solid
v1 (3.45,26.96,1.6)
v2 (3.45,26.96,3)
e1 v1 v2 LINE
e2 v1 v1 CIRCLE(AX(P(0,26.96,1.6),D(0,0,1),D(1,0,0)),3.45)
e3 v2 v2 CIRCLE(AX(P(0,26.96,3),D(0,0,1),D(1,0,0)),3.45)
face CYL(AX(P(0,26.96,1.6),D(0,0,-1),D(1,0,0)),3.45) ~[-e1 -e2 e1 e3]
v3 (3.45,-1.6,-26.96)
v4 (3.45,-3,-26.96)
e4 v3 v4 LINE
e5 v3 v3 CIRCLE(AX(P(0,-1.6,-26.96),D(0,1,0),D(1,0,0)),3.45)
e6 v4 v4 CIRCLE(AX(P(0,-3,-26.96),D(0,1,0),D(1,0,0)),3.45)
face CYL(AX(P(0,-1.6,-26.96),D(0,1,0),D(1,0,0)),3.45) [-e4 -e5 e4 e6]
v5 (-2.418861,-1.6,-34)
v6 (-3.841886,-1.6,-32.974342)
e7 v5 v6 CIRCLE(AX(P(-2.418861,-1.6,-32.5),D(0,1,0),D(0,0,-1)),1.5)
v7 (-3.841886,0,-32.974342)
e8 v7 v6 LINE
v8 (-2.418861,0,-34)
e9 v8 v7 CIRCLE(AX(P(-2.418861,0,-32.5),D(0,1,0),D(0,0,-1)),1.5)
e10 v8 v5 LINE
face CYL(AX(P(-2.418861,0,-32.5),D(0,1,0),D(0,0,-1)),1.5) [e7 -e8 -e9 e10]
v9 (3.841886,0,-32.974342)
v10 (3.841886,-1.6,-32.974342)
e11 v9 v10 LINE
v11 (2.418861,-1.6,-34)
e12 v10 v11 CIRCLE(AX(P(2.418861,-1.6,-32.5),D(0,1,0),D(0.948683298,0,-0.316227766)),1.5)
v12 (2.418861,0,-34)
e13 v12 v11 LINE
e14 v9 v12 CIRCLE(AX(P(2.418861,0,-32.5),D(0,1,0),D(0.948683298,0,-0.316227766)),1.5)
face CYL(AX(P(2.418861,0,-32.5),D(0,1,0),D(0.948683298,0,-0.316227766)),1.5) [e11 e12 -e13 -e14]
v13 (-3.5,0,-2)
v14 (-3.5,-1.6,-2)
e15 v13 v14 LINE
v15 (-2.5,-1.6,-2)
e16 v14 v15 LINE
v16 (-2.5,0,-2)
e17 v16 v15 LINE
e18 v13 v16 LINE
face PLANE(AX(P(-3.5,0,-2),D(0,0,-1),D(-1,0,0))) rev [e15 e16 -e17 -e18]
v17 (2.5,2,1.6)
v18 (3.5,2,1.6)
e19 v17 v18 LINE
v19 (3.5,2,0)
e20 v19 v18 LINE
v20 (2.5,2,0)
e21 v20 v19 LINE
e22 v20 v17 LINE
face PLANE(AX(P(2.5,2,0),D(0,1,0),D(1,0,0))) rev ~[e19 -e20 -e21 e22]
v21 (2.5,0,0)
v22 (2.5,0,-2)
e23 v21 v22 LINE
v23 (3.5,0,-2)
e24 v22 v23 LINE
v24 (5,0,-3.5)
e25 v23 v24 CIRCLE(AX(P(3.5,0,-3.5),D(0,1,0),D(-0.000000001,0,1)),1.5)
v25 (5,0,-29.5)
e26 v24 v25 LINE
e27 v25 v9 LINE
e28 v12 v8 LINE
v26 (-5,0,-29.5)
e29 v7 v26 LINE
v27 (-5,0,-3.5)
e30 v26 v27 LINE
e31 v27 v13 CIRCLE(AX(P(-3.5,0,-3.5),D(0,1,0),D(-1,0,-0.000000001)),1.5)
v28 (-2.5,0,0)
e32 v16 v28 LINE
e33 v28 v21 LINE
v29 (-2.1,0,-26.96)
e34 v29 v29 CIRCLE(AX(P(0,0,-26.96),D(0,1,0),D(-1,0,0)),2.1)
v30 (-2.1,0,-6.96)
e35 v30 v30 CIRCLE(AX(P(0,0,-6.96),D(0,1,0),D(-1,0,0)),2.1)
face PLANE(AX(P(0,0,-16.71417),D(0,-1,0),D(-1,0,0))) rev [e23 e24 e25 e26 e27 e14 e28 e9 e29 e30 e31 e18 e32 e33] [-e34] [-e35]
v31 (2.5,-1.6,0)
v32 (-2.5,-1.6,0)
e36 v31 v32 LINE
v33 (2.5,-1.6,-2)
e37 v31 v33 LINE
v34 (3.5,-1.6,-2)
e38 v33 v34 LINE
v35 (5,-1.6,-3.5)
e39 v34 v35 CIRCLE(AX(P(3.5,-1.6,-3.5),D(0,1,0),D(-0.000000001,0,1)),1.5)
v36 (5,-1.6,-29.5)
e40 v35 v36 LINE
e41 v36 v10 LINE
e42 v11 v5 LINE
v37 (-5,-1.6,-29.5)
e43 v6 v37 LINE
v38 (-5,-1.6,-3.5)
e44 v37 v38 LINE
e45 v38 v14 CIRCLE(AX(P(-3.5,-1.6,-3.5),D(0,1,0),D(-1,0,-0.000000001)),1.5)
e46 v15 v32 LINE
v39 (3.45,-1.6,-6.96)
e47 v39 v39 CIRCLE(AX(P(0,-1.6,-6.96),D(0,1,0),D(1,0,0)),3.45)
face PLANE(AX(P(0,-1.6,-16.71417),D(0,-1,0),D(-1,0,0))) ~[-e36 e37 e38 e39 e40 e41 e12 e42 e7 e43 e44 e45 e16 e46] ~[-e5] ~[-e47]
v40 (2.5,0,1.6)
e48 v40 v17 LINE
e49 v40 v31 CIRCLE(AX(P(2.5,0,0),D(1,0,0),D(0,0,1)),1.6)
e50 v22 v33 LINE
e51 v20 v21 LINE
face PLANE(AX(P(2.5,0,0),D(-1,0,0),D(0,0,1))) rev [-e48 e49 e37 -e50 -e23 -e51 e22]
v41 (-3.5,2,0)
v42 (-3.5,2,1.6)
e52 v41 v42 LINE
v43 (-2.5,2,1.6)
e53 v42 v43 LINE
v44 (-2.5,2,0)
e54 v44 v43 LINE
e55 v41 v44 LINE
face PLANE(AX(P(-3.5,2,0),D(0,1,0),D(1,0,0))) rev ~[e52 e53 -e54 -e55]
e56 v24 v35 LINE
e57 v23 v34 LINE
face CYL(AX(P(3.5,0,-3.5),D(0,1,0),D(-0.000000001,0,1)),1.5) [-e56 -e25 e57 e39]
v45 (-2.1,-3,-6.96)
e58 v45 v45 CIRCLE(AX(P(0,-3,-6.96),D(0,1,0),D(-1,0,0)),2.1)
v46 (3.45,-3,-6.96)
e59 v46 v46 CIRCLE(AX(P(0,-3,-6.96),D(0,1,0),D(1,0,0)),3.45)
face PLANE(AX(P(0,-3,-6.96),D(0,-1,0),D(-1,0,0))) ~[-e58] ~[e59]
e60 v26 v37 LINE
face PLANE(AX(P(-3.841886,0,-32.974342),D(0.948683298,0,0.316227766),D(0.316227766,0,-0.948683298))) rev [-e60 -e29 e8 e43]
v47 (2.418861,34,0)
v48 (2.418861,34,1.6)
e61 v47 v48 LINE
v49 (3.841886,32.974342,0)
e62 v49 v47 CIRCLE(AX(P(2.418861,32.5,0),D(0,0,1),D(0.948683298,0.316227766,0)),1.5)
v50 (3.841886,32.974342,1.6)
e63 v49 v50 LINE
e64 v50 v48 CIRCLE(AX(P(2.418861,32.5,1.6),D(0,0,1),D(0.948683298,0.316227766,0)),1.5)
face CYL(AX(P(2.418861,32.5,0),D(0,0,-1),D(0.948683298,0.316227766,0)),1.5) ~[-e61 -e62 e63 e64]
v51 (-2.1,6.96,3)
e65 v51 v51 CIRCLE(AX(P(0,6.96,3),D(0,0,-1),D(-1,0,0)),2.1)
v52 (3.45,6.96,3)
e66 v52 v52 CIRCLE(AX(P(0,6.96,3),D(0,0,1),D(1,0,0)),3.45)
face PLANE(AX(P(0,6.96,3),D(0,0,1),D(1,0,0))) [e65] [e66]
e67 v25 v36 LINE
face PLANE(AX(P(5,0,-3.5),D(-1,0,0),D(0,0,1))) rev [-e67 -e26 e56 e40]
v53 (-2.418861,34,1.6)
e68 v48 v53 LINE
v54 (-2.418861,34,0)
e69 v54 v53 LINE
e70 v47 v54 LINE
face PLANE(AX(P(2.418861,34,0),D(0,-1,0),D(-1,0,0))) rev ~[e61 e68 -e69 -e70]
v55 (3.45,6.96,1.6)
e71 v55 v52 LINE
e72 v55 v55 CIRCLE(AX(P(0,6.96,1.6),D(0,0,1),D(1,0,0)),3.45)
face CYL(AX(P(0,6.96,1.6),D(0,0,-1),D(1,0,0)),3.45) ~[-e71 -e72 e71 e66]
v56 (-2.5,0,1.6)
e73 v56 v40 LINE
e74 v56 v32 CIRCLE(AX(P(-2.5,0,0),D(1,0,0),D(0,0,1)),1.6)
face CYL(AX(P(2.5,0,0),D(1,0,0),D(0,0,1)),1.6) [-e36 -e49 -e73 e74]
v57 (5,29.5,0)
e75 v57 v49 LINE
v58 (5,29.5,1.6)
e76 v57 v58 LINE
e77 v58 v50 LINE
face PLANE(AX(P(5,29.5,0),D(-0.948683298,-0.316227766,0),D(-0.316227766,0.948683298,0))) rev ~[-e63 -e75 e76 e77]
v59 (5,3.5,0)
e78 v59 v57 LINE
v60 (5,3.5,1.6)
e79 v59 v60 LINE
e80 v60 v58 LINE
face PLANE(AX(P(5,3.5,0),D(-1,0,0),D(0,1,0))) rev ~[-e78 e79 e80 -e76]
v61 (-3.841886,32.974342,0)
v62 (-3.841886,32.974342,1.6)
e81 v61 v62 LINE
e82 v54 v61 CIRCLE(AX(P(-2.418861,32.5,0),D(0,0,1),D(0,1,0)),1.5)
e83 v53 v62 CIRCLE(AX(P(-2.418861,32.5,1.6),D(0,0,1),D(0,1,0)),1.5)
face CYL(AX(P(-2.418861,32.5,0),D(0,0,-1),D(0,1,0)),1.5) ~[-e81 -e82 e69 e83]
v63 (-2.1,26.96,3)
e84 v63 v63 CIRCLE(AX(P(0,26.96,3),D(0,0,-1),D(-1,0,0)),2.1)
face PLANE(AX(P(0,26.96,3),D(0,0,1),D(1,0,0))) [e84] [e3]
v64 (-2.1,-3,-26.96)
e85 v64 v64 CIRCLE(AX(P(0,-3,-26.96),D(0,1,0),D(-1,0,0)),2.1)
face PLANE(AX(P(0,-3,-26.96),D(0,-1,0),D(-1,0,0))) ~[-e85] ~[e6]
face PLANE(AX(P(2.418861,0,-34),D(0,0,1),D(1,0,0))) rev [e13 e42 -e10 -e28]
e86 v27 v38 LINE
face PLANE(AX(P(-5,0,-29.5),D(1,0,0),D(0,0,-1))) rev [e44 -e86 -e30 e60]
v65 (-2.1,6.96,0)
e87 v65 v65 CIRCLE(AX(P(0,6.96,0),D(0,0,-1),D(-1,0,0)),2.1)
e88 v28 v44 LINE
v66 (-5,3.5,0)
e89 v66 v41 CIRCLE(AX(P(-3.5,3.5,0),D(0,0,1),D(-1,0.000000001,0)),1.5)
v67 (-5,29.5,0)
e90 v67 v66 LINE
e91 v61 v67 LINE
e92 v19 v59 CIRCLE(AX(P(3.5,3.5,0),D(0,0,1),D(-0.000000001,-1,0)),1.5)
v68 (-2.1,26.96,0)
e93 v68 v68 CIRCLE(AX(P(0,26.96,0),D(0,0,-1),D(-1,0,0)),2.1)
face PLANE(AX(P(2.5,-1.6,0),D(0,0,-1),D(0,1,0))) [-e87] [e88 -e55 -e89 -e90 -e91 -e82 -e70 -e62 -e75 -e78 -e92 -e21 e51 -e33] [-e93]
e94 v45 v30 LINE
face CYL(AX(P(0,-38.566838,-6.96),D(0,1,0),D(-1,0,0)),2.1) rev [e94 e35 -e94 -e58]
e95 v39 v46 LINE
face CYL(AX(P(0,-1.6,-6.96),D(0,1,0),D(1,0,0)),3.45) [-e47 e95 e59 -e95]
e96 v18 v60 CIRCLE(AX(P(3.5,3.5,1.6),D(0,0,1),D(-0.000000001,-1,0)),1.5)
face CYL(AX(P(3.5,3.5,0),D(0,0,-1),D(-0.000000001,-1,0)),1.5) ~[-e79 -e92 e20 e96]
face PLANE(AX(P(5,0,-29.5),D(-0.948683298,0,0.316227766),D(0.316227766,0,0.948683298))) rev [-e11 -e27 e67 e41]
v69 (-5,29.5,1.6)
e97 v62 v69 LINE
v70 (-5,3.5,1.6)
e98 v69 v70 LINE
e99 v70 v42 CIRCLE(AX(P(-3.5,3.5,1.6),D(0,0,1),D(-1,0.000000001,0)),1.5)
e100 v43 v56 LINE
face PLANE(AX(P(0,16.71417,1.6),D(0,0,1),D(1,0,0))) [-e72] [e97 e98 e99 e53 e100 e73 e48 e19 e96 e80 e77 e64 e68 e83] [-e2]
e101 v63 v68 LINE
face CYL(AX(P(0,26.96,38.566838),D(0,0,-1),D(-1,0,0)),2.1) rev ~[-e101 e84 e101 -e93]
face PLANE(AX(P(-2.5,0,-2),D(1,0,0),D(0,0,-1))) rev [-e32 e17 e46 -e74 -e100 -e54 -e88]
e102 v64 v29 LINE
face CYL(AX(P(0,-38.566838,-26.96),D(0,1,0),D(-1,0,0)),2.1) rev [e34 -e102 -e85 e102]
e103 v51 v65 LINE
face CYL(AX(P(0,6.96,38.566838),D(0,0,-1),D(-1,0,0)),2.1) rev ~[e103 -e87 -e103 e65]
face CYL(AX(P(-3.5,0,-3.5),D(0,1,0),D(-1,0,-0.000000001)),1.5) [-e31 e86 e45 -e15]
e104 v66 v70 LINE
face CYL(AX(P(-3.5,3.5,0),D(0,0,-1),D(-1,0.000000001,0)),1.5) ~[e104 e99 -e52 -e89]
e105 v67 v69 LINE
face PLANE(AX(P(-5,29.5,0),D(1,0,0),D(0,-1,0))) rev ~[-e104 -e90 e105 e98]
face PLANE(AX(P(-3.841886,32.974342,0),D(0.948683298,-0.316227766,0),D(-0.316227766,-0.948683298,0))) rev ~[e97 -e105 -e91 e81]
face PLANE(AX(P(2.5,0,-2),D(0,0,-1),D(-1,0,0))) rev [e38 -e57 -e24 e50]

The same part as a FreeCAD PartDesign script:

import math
import FreeCAD as App
import Part
import Sketcher

doc = App.newDocument("Part")
params = doc.addObject("Spreadsheet::Sheet", "Params")
for row, (alias, value) in enumerate([
    ("sketch1_radius", "1.5 mm"),
    ("sketch1_width", "1 mm"),
    ("sketch1_width2", "5 mm"),
    ("sketch1_height", "2 mm"),
    ("sketch1_height2", "26 mm"),
    ("pad1_length", "1.6 mm"),
    ("sketch2_diameter", "6.9 mm"),
    ("pad2_length", "1.4 mm"),
    ("sketch3_diameter", "4.2 mm"),
    ("hole_diameter", "4.2 mm"),
    ("sketch4_radius", "1.6 mm"),
    ("pad3_length", "5 mm"),
], start=1):
    params.set(f"A{row}", alias)
    params.set(f"B{row}", "=" + value)
    params.setAlias(f"B{row}", alias)

body = doc.addObject("PartDesign::Body", "Body")

# Sketch on XY plane
sketch1 = doc.addObject("Sketcher::SketchObject", "Sketch")
body.addObject(sketch1)
sketch1.AttachmentSupport = (doc.XY_Plane, [""])
sketch1.MapMode = "FlatFace"
sketch1.addGeometry(Part.LineSegment(App.Vector(-3.5, 2, 0), App.Vector(-2.5, 2, 0)), False)
sketch1.addGeometry(Part.LineSegment(App.Vector(-2.5, 2, 0), App.Vector(-2.5, 0, 0)), False)
sketch1.addGeometry(Part.LineSegment(App.Vector(-2.5, 0, 0), App.Vector(2.5, 0, 0)), False)
sketch1.addGeometry(Part.LineSegment(App.Vector(2.5, 0, 0), App.Vector(2.5, 2, 0)), False)
sketch1.addGeometry(Part.LineSegment(App.Vector(2.5, 2, 0), App.Vector(3.5, 2, 0)), False)
sketch1.addGeometry(Part.ArcOfCircle(Part.Circle(App.Vector(3.5, 3.5, 0), App.Vector(0, 0, 1), 1.5), math.radians(-90), math.radians(0)), False)
sketch1.addGeometry(Part.LineSegment(App.Vector(5, 3.5, 0), App.Vector(5, 29.5, 0)), False)
sketch1.addGeometry(Part.LineSegment(App.Vector(5, 29.5, 0), App.Vector(3.8, 33, 0)), False)
sketch1.addGeometry(Part.ArcOfCircle(Part.Circle(App.Vector(2.4, 32.5, 0), App.Vector(0, 0, 1), 1.5), math.radians(18), math.radians(90)), False)
sketch1.addGeometry(Part.LineSegment(App.Vector(2.4, 34, 0), App.Vector(-2.4, 34, 0)), False)
sketch1.addGeometry(Part.ArcOfCircle(Part.Circle(App.Vector(-2.4, 32.5, 0), App.Vector(0, 0, 1), 1.5), math.radians(90), math.radians(162)), False)
sketch1.addGeometry(Part.LineSegment(App.Vector(-3.8, 33, 0), App.Vector(-5, 29.5, 0)), False)
sketch1.addGeometry(Part.LineSegment(App.Vector(-5, 29.5, 0), App.Vector(-5, 3.5, 0)), False)
sketch1.addGeometry(Part.ArcOfCircle(Part.Circle(App.Vector(-3.5, 3.5, 0), App.Vector(0, 0, 1), 1.5), math.radians(180), math.radians(270)), False)
sketch1.addConstraint(Sketcher.Constraint("Coincident", 0, 2, 1, 1))
sketch1.addConstraint(Sketcher.Constraint("Coincident", 1, 2, 2, 1))
sketch1.addConstraint(Sketcher.Constraint("Coincident", 2, 2, 3, 1))
sketch1.addConstraint(Sketcher.Constraint("Coincident", 3, 2, 4, 1))
sketch1.addConstraint(Sketcher.Constraint("Tangent", 4, 2, 5, 1))
sketch1.addConstraint(Sketcher.Constraint("Tangent", 5, 2, 6, 1))
sketch1.addConstraint(Sketcher.Constraint("Coincident", 6, 2, 7, 1))
sketch1.addConstraint(Sketcher.Constraint("Tangent", 7, 2, 8, 1))
sketch1.addConstraint(Sketcher.Constraint("Tangent", 8, 2, 9, 1))
sketch1.addConstraint(Sketcher.Constraint("Tangent", 9, 2, 10, 1))
sketch1.addConstraint(Sketcher.Constraint("Tangent", 10, 2, 11, 1))
sketch1.addConstraint(Sketcher.Constraint("Coincident", 11, 2, 12, 1))
sketch1.addConstraint(Sketcher.Constraint("Tangent", 12, 2, 13, 1))
sketch1.addConstraint(Sketcher.Constraint("Tangent", 13, 2, 0, 1))
sketch1.addConstraint(Sketcher.Constraint("Horizontal", 0))
sketch1.addConstraint(Sketcher.Constraint("Vertical", 1))
sketch1.addConstraint(Sketcher.Constraint("Horizontal", 2))
sketch1.addConstraint(Sketcher.Constraint("Vertical", 3))
sketch1.addConstraint(Sketcher.Constraint("Horizontal", 4))
sketch1.addConstraint(Sketcher.Constraint("Vertical", 6))
sketch1.addConstraint(Sketcher.Constraint("Horizontal", 9))
sketch1.addConstraint(Sketcher.Constraint("Vertical", 12))
sketch1.addConstraint(Sketcher.Constraint("Equal", 5, 8))
sketch1.addConstraint(Sketcher.Constraint("Equal", 8, 10))
sketch1.addConstraint(Sketcher.Constraint("Equal", 10, 13))
sketch1.addConstraint(Sketcher.Constraint("Symmetric", 1, 2, 2, 2, -1, 1))
sketch1.addConstraint(Sketcher.Constraint("Symmetric", 5, 3, 13, 3, -2))
sketch1.addConstraint(Sketcher.Constraint("Symmetric", 7, 2, 10, 2, -2))
sketch1.addConstraint(Sketcher.Constraint("Radius", 5, 1.5))
sketch1.addConstraint(Sketcher.Constraint("DistanceX", 0, 1, 0, 2, 1.0))
sketch1.addConstraint(Sketcher.Constraint("DistanceX", 2, 1, 2, 2, 5.0))
sketch1.addConstraint(Sketcher.Constraint("DistanceY", 1, 2, 1, 1, 2.0))
sketch1.addConstraint(Sketcher.Constraint("DistanceY", 6, 1, 6, 2, 26.0))
sketch1.addConstraint(Sketcher.Constraint("DistanceY", -1, 1, 8, 2, 34.0))
sketch1.addConstraint(Sketcher.Constraint("DistanceX", 9, 2, 9, 1, 4.837722))
sketch1.setExpression("Constraints[28]", "Params.sketch1_radius")
sketch1.setExpression("Constraints[29]", "Params.sketch1_width")
sketch1.setExpression("Constraints[30]", "Params.sketch1_width2")
sketch1.setExpression("Constraints[31]", "Params.sketch1_height")
sketch1.setExpression("Constraints[32]", "Params.sketch1_height2")
pad1 = doc.addObject("PartDesign::Pad", "Pad")
body.addObject(pad1)
pad1.Profile = sketch1
pad1.setExpression("Length", "Params.pad1_length")

# Sketch on XY plane
sketch2 = doc.addObject("Sketcher::SketchObject", "Sketch001")
body.addObject(sketch2)
sketch2.AttachmentSupport = (doc.XY_Plane, [""])
sketch2.MapMode = "FlatFace"
sketch2.AttachmentOffset = App.Placement(App.Vector(0, 0, 1.6), App.Rotation())
sketch2.addGeometry(Part.Circle(App.Vector(0, 7, 0), App.Vector(0, 0, 1), 3.5), False)
sketch2.addGeometry(Part.Circle(App.Vector(0, 27, 0), App.Vector(0, 0, 1), 3.5), False)
sketch2.addConstraint(Sketcher.Constraint("Equal", 0, 1))
sketch2.addConstraint(Sketcher.Constraint("PointOnObject", 0, 3, -2))
sketch2.addConstraint(Sketcher.Constraint("PointOnObject", 1, 3, -2))
sketch2.addConstraint(Sketcher.Constraint("Diameter", 0, 6.9))
sketch2.addConstraint(Sketcher.Constraint("DistanceY", 0, 3, 1, 3, 20.0))
sketch2.addConstraint(Sketcher.Constraint("DistanceY", -1, 1, 0, 3, 6.96))
sketch2.setExpression("Constraints[3]", "Params.sketch2_diameter")
pad2 = doc.addObject("PartDesign::Pad", "Pad001")
body.addObject(pad2)
pad2.Profile = sketch2
pad2.setExpression("Length", "Params.pad2_length")

# Sketch on XY plane
sketch3 = doc.addObject("Sketcher::SketchObject", "Sketch002")
body.addObject(sketch3)
sketch3.AttachmentSupport = (doc.XY_Plane, [""])
sketch3.MapMode = "FlatFace"
sketch3.AttachmentOffset = App.Placement(App.Vector(0, 0, 3), App.Rotation())
sketch3.addGeometry(Part.Circle(App.Vector(0, 27, 0), App.Vector(0, 0, 1), 2.1), False)
sketch3.addGeometry(Part.Circle(App.Vector(0, 7, 0), App.Vector(0, 0, 1), 2.1), False)
sketch3.addConstraint(Sketcher.Constraint("Equal", 0, 1))
sketch3.addConstraint(Sketcher.Constraint("PointOnObject", 0, 3, -2))
sketch3.addConstraint(Sketcher.Constraint("PointOnObject", 1, 3, -2))
sketch3.addConstraint(Sketcher.Constraint("Diameter", 0, 4.2))
sketch3.addConstraint(Sketcher.Constraint("DistanceY", 1, 3, 0, 3, 20.0))
sketch3.addConstraint(Sketcher.Constraint("DistanceY", -1, 1, 0, 3, 26.96))
sketch3.setExpression("Constraints[3]", "Params.sketch3_diameter")
doc.recompute()
hole = doc.addObject("PartDesign::Hole", "Hole")
body.addObject(hole)
hole.Profile = sketch3
hole.ThreadType = "None"
hole.setExpression("Diameter", "Params.hole_diameter")
hole.DepthType = "ThroughAll"

# Sketch on YZ plane
sketch4 = doc.addObject("Sketcher::SketchObject", "Sketch003")
body.addObject(sketch4)
sketch4.AttachmentSupport = (doc.YZ_Plane, [""])
sketch4.MapMode = "FlatFace"
sketch4.AttachmentOffset = App.Placement(App.Vector(0, 0, 2.5), App.Rotation())
sketch4.addGeometry(Part.LineSegment(App.Vector(0, 0, 0), App.Vector(0, 1.6, 0)), False)
sketch4.addGeometry(Part.ArcOfCircle(Part.Circle(App.Vector(0, 0, 0), App.Vector(0, 0, 1), 1.6), math.radians(90), math.radians(180)), False)
sketch4.addGeometry(Part.LineSegment(App.Vector(-1.6, 0, 0), App.Vector(0, 0, 0)), False)
sketch4.addConstraint(Sketcher.Constraint("Coincident", 0, 2, 1, 1))
sketch4.addConstraint(Sketcher.Constraint("Coincident", 1, 2, 2, 1))
sketch4.addConstraint(Sketcher.Constraint("Coincident", 2, 2, 0, 1))
sketch4.addConstraint(Sketcher.Constraint("Vertical", 0))
sketch4.addConstraint(Sketcher.Constraint("Horizontal", 2))
sketch4.addConstraint(Sketcher.Constraint("Coincident", 1, 3, -1, 1))
sketch4.addConstraint(Sketcher.Constraint("Coincident", 2, 2, -1, 1))
sketch4.addConstraint(Sketcher.Constraint("Radius", 1, 1.6))
sketch4.setExpression("Constraints[7]", "Params.sketch4_radius")
pad3 = doc.addObject("PartDesign::Pad", "Pad002")
body.addObject(pad3)
pad3.Profile = sketch4
pad3.setExpression("Length", "Params.pad3_length")
pad3.Reversed = True
doc.recompute()

datumplane = doc.addObject("PartDesign::Plane", "DatumPlane")
body.addObject(datumplane)
datumplane.Placement = App.Placement(App.Vector(0, 0, 0), App.Rotation(App.Vector(0, -0.707106781, 0.707106781), App.Vector(-1, 0, 0), App.Vector(0, -0.707106781, -0.707106781), "ZXY"))
mirrored = doc.addObject("PartDesign::Mirrored", "Mirrored")
body.addObject(mirrored)
mirrored.Originals = [pad1, pad2, hole]
mirrored.MirrorPlane = (datumplane, [""])
body.Tip = mirrored

doc.recompute()
